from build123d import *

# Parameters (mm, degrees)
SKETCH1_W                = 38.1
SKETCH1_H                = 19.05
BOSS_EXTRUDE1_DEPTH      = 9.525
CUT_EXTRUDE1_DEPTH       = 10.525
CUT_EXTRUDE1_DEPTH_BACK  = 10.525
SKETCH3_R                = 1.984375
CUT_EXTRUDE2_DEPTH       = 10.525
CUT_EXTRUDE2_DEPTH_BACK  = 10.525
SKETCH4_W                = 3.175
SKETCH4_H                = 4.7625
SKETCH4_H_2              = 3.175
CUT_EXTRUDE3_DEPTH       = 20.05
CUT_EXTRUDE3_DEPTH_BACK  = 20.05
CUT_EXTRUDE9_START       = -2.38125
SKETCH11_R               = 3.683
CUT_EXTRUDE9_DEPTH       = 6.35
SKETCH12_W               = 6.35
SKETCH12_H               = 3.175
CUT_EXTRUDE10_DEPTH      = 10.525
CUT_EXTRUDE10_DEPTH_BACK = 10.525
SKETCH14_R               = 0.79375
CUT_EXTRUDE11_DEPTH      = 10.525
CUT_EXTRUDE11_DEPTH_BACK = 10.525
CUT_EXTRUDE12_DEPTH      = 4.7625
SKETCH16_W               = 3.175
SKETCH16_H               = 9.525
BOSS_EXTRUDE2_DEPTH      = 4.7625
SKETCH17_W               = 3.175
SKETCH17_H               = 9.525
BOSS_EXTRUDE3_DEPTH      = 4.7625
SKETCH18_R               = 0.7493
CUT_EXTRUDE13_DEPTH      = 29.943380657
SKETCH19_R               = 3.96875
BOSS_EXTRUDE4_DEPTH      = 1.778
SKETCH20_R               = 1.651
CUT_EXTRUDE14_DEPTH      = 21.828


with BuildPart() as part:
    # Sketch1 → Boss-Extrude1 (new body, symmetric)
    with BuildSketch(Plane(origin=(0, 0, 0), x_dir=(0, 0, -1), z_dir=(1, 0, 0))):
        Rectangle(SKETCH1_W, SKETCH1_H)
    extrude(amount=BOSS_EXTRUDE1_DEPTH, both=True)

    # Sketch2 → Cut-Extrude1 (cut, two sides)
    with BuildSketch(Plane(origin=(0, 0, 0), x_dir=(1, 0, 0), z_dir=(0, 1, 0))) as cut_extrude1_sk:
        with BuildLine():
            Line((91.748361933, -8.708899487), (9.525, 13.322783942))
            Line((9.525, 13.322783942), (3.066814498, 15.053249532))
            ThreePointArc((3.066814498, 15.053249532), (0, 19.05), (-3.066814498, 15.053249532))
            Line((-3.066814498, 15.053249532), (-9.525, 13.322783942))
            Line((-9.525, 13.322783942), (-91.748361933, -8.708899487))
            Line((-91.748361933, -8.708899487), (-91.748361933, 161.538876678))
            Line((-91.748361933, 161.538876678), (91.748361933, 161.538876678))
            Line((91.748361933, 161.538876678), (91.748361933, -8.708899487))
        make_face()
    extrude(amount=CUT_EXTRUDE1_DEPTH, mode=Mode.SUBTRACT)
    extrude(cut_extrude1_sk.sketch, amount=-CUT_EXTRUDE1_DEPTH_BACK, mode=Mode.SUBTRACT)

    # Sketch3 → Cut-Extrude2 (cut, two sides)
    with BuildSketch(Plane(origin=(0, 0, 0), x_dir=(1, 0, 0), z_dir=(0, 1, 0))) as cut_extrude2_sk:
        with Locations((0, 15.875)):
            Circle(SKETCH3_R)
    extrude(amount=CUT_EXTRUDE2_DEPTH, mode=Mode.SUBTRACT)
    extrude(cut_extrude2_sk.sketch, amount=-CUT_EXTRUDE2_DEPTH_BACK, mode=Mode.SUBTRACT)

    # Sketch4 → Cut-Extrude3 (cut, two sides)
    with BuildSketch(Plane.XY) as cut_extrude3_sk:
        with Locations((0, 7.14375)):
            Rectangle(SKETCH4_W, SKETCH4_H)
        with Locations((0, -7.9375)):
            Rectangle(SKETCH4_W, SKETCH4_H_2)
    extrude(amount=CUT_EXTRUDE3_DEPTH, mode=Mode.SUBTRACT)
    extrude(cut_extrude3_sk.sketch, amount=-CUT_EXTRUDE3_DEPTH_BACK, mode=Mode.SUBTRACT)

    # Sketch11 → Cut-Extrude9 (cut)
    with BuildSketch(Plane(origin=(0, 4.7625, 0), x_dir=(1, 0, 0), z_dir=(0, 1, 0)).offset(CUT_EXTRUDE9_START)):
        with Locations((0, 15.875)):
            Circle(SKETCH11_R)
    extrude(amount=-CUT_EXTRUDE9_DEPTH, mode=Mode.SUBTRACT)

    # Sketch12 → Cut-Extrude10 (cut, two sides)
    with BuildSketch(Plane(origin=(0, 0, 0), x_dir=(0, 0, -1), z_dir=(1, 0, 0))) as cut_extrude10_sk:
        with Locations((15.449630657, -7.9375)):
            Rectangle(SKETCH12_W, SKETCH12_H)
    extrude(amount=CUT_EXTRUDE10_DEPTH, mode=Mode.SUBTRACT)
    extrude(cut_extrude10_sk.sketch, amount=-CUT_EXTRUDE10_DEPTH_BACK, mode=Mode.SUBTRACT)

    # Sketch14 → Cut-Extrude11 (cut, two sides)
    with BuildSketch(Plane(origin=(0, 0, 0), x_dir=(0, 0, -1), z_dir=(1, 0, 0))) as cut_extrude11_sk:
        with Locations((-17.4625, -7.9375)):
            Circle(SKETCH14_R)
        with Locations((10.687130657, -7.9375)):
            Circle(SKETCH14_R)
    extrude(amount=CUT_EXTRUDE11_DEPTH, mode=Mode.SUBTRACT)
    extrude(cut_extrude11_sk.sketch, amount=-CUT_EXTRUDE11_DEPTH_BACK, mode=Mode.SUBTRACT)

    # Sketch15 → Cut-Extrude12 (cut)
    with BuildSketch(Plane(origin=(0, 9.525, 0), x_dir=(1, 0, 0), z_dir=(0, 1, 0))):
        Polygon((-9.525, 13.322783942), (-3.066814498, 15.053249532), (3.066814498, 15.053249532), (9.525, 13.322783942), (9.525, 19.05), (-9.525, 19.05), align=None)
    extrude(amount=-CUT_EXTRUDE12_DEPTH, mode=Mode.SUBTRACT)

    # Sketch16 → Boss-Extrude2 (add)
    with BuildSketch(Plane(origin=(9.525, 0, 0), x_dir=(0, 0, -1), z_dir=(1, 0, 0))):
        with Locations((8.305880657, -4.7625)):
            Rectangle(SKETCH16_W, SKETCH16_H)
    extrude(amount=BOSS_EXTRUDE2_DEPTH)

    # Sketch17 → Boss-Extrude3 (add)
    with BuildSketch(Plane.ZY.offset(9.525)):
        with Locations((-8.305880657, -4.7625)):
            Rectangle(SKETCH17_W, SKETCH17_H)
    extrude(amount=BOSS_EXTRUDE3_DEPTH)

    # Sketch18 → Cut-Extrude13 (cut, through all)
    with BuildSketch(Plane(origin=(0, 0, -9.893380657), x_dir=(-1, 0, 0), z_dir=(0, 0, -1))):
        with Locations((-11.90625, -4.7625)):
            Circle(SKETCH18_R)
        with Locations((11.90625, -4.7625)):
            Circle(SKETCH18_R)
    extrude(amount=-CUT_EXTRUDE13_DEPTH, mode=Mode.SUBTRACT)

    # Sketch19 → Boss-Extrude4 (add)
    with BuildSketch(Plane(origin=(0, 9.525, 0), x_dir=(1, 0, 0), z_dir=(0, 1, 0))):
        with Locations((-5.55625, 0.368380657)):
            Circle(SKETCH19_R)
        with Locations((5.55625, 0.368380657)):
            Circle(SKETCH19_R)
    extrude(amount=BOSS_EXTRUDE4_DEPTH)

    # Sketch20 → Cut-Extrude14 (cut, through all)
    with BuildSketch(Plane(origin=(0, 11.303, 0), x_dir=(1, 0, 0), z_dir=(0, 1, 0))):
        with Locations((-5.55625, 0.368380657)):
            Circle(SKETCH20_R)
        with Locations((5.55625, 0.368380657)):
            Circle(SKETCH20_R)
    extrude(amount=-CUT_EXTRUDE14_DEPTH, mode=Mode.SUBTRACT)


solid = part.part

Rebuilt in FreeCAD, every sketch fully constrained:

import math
import FreeCAD as App
import Part
import Sketcher

V = App.Vector
Q = App.Units.Quantity


def add_polygon(sketch, points):
    """Adds a closed chain of lines whose ends are joined by coincident constraints."""
    first, n = sketch.GeometryCount, len(points)
    for a, b in zip(points, points[1:] + points[:1]):
        sketch.addGeometry(Part.LineSegment(App.Vector(*a, 0), App.Vector(*b, 0)), False)
    for i in range(n):
        sketch.addConstraint(Sketcher.Constraint("Coincident", first + i, 2, first + (i + 1) % n, 1))

doc = App.newDocument("Part")
body = doc.addObject("PartDesign::Body", "Body")

# Sketch on YZ plane
sketch1 = doc.addObject("Sketcher::SketchObject", "Sketch")
body.addObject(sketch1)
sketch1.AttachmentSupport = (doc.YZ_Plane, [""])
sketch1.MapMode = "FlatFace"
add_polygon(sketch1, [(10, 19), (-10, 19), (-10, -19), (10, -19)])  # lines 0-3
sketch1.addConstraint(Sketcher.Constraint("Horizontal", 0))
sketch1.addConstraint(Sketcher.Constraint("Vertical", 1))
sketch1.addConstraint(Sketcher.Constraint("Horizontal", 2))
sketch1.addConstraint(Sketcher.Constraint("Vertical", 3))
sketch1.addConstraint(Sketcher.Constraint("Symmetric", 0, 2, 2, 2, -1, 1))
sketch1.addConstraint(Sketcher.Constraint("DistanceY", 1, 2, 1, 1, Q("1.5 in")))
sketch1.addConstraint(Sketcher.Constraint("DistanceX", 0, 2, 0, 1, Q("0.75 in")))
pad1 = doc.addObject("PartDesign::Pad", "Pad")
body.addObject(pad1)
pad1.Profile = sketch1
pad1.Length = Q("0.75 in")
pad1.Midplane = True

# Sketch on XZ plane
sketch2 = doc.addObject("Sketcher::SketchObject", "Sketch001")
body.addObject(sketch2)
sketch2.AttachmentSupport = (doc.XZ_Plane, [""])
sketch2.MapMode = "FlatFace"
sketch2.addGeometry(Part.LineSegment(V(9.5, -13.3, 0), V(91.7, 8.7, 0)), False)
sketch2.addGeometry(Part.LineSegment(V(91.7, 8.7, 0), V(91.7, -161.5, 0)), False)
sketch2.addGeometry(Part.LineSegment(V(91.7, -161.5, 0), V(-91.7, -161.5, 0)), False)
sketch2.addGeometry(Part.LineSegment(V(-91.7, -161.5, 0), V(-91.7, 8.7, 0)), False)
sketch2.addGeometry(Part.LineSegment(V(-91.7, 8.7, 0), V(-9.5, -13.3, 0)), False)
sketch2.addGeometry(Part.LineSegment(V(-9.5, -13.3, 0), V(-3.1, -15.1, 0)), False)
sketch2.addGeometry(Part.ArcOfCircle(Part.Circle(V(0, -15.9, 0), V(0, 0, 1), 3.2), math.radians(165), math.radians(375)), False)
sketch2.addGeometry(Part.LineSegment(V(3.1, -15.1, 0), V(9.5, -13.3, 0)), False)
sketch2.addConstraint(Sketcher.Constraint("Coincident", 0, 2, 1, 1))
sketch2.addConstraint(Sketcher.Constraint("Coincident", 1, 2, 2, 1))
sketch2.addConstraint(Sketcher.Constraint("Coincident", 2, 2, 3, 1))
sketch2.addConstraint(Sketcher.Constraint("Coincident", 3, 2, 4, 1))
sketch2.addConstraint(Sketcher.Constraint("Coincident", 4, 2, 5, 1))
sketch2.addConstraint(Sketcher.Constraint("Coincident", 5, 2, 6, 1))
sketch2.addConstraint(Sketcher.Constraint("Coincident", 6, 2, 7, 1))
sketch2.addConstraint(Sketcher.Constraint("Coincident", 7, 2, 0, 1))
sketch2.addConstraint(Sketcher.Constraint("Vertical", 1))
sketch2.addConstraint(Sketcher.Constraint("Horizontal", 2))
sketch2.addConstraint(Sketcher.Constraint("Vertical", 3))
sketch2.addConstraint(Sketcher.Constraint("Symmetric", 0, 2, 3, 2, -2))
sketch2.addConstraint(Sketcher.Constraint("Symmetric", 5, 2, 6, 2, -2))
sketch2.addConstraint(Sketcher.Constraint("Symmetric", 4, 2, 7, 2, -2))
sketch2.addConstraint(Sketcher.Constraint("Parallel", 4, 5))
sketch2.addConstraint(Sketcher.Constraint("Angle", 0, Q("15 deg")))
sketch2.addConstraint(Sketcher.Constraint("Radius", 6, Q("0.125 in")))
sketch2.addConstraint(Sketcher.Constraint("DistanceX", 4, 2, 7, 2, Q("0.75 in")))
sketch2.addConstraint(Sketcher.Constraint("DistanceY", 6, 3, -1, 1, Q("0.625 in")))
sketch2.addConstraint(Sketcher.Constraint("DistanceY", -1, 1, 0, 2, Q("8.708899 mm")))
sketch2.addConstraint(Sketcher.Constraint("Distance", 0, Q("85.123888 mm")))
sketch2.addConstraint(Sketcher.Constraint("DistanceY", 1, 2, 1, 1, Q("170.247776 mm")))
pocket1 = doc.addObject("PartDesign::Pocket", "Pocket")
body.addObject(pocket1)
pocket1.Profile = sketch2
pocket1.Type = "ThroughAll"
pocket1.Midplane = True

# Sketch on XZ plane
sketch3 = doc.addObject("Sketcher::SketchObject", "Sketch002")
body.addObject(sketch3)
sketch3.AttachmentSupport = (doc.XZ_Plane, [""])
sketch3.MapMode = "FlatFace"
sketch3.addGeometry(Part.Circle(V(0, -15.9, 0), V(0, 0, 1), 2), False)
sketch3.addConstraint(Sketcher.Constraint("PointOnObject", 0, 3, -2))
sketch3.addConstraint(Sketcher.Constraint("Diameter", 0, Q("0.15625 in")))
sketch3.addConstraint(Sketcher.Constraint("DistanceY", 0, 3, -1, 1, Q("0.625 in")))
pocket2 = doc.addObject("PartDesign::Pocket", "Pocket001")
body.addObject(pocket2)
pocket2.Profile = sketch3
pocket2.Type = "ThroughAll"
pocket2.Midplane = True

# Sketch on XY plane
sketch4 = doc.addObject("Sketcher::SketchObject", "Sketch003")
body.addObject(sketch4)
sketch4.AttachmentSupport = (doc.XY_Plane, [""])
sketch4.MapMode = "FlatFace"
add_polygon(sketch4, [(-1.6, 9.5), (-1.6, 4.8), (1.6, 4.8), (1.6, 9.5)])  # lines 0-3
add_polygon(sketch4, [(-1.6, -6.3), (-1.6, -9.5), (1.6, -9.5), (1.6, -6.3)])  # lines 4-7
sketch4.addConstraint(Sketcher.Constraint("Vertical", 0))
sketch4.addConstraint(Sketcher.Constraint("Horizontal", 1))
sketch4.addConstraint(Sketcher.Constraint("Vertical", 2))
sketch4.addConstraint(Sketcher.Constraint("Horizontal", 3))
sketch4.addConstraint(Sketcher.Constraint("Vertical", 4))
sketch4.addConstraint(Sketcher.Constraint("Horizontal", 5))
sketch4.addConstraint(Sketcher.Constraint("Vertical", 6))
sketch4.addConstraint(Sketcher.Constraint("Horizontal", 7))
sketch4.addConstraint(Sketcher.Constraint("Symmetric", 2, 2, 4, 2, -1, 1))
sketch4.addConstraint(Sketcher.Constraint("Vertical", 3, 2, 4, 2))
sketch4.addConstraint(Sketcher.Constraint("Vertical", 2, 2, 5, 2))
sketch4.addConstraint(Sketcher.Constraint("Equal", 7, 4))
sketch4.addConstraint(Sketcher.Constraint("DistanceX", 1, 1, 1, 2, Q("0.125 in")))
sketch4.addConstraint(Sketcher.Constraint("DistanceY", 0, 2, 0, 1, Q("0.1875 in")))
sketch4.addConstraint(Sketcher.Constraint("DistanceY", 6, 2, -1, 1, Q("0.25 in")))
pocket3 = doc.addObject("PartDesign::Pocket", "Pocket002")
body.addObject(pocket3)
pocket3.Profile = sketch4
pocket3.Type = "ThroughAll"
pocket3.Midplane = True

# Sketch on XZ plane
sketch5 = doc.addObject("Sketcher::SketchObject", "Sketch004")
body.addObject(sketch5)
sketch5.AttachmentSupport = (doc.XZ_Plane, [""])
sketch5.MapMode = "FlatFace"
sketch5.AttachmentOffset = App.Placement(V(0, 0, -0.09375 * 25.4), App.Rotation())
sketch5.addGeometry(Part.Circle(V(0, -15.9, 0), V(0, 0, 1), 3.7), False)
sketch5.addConstraint(Sketcher.Constraint("PointOnObject", 0, 3, -2))
sketch5.addConstraint(Sketcher.Constraint("Diameter", 0, Q("0.29 in")))
sketch5.addConstraint(Sketcher.Constraint("DistanceY", 0, 3, -1, 1, Q("0.625 in")))
pocket4 = doc.addObject("PartDesign::Pocket", "Pocket003")
body.addObject(pocket4)
pocket4.Profile = sketch5
pocket4.Length = Q("0.25 in")
pocket4.Reversed = True

# Sketch on YZ plane
sketch6 = doc.addObject("Sketcher::SketchObject", "Sketch005")
body.addObject(sketch6)
sketch6.AttachmentSupport = (doc.YZ_Plane, [""])
sketch6.MapMode = "FlatFace"
add_polygon(sketch6, [(-6.3, -12.3), (-9.5, -12.3), (-9.5, -18.6), (-6.3, -18.6)])  # lines 0-3
sketch6.addConstraint(Sketcher.Constraint("Horizontal", 0))
sketch6.addConstraint(Sketcher.Constraint("Vertical", 1))
sketch6.addConstraint(Sketcher.Constraint("Horizontal", 2))
sketch6.addConstraint(Sketcher.Constraint("Vertical", 3))
sketch6.addConstraint(Sketcher.Constraint("DistanceY", 1, 2, 1, 1, Q("0.25 in")))
sketch6.addConstraint(Sketcher.Constraint("DistanceX", 0, 2, 0, 1, Q("0.125 in")))
sketch6.addConstraint(Sketcher.Constraint("DistanceX", 2, 2, -1, 1, Q("0.25 in")))
sketch6.addConstraint(Sketcher.Constraint("DistanceY", 0, 2, -1, 1, Q("12.274631 mm")))
pocket5 = doc.addObject("PartDesign::Pocket", "Pocket004")
body.addObject(pocket5)
pocket5.Profile = sketch6
pocket5.Type = "ThroughAll"
pocket5.Midplane = True

# Sketch on YZ plane
sketch7 = doc.addObject("Sketcher::SketchObject", "Sketch006")
body.addObject(sketch7)
sketch7.AttachmentSupport = (doc.YZ_Plane, [""])
sketch7.MapMode = "FlatFace"
sketch7.addGeometry(Part.Circle(V(-7.9, 17.5, 0), V(0, 0, 1), 0.8), False)
sketch7.addGeometry(Part.Circle(V(-7.9, -10.7, 0), V(0, 0, 1), 0.8), False)
sketch7.addConstraint(Sketcher.Constraint("Equal", 0, 1))
sketch7.addConstraint(Sketcher.Constraint("Vertical", 0, 3, 1, 3))
sketch7.addConstraint(Sketcher.Constraint("Diameter", 0, Q("0.0625 in")))
sketch7.addConstraint(Sketcher.Constraint("DistanceX", 0, 3, -1, 1, Q("0.3125 in")))
sketch7.addConstraint(Sketcher.Constraint("DistanceY", -1, 1, 0, 3, Q("0.6875 in")))
sketch7.addConstraint(Sketcher.Constraint("DistanceY", 1, 3, -1, 1, Q("10.687131 mm")))
pocket6 = doc.addObject("PartDesign::Pocket", "Pocket005")
body.addObject(pocket6)
pocket6.Profile = sketch7
pocket6.Type = "ThroughAll"
pocket6.Midplane = True

# Sketch on XZ plane
sketch8 = doc.addObject("Sketcher::SketchObject", "Sketch007")
body.addObject(sketch8)
sketch8.AttachmentSupport = (doc.XZ_Plane, [""])
sketch8.MapMode = "FlatFace"
sketch8.AttachmentOffset = App.Placement(V(0, 0, -0.375 * 25.4), App.Rotation())
add_polygon(sketch8, [(-10, -13), (-3, -15), (3, -15), (10, -13), (10, -19), (-10, -19)])  # lines 0-5
sketch8.addConstraint(Sketcher.Constraint("Horizontal", 1))
sketch8.addConstraint(Sketcher.Constraint("Vertical", 3))
sketch8.addConstraint(Sketcher.Constraint("Horizontal", 4))
sketch8.addConstraint(Sketcher.Constraint("Vertical", 5))
sketch8.addConstraint(Sketcher.Constraint("Symmetric", 2, 2, 5, 2, -2))
sketch8.addConstraint(Sketcher.Constraint("Equal", 0, 2))
sketch8.addConstraint(Sketcher.Constraint("Angle", 0, Q("-15 deg")))
sketch8.addConstraint(Sketcher.Constraint("DistanceX", 4, 2, 4, 1, Q("0.75 in")))
sketch8.addConstraint(Sketcher.Constraint("DistanceY", 3, 2, -1, 1, Q("0.75 in")))
sketch8.addConstraint(Sketcher.Constraint("DistanceX", 1, 1, 1, 2, Q("6.133629 mm")))
sketch8.addConstraint(Sketcher.Constraint("DistanceY", 3, 2, 3, 1, Q("5.727216 mm")))
pocket7 = doc.addObject("PartDesign::Pocket", "Pocket006")
body.addObject(pocket7)
pocket7.Profile = sketch8
pocket7.Length = Q("0.1875 in")
pocket7.Reversed = True

# Sketch on YZ plane
sketch9 = doc.addObject("Sketcher::SketchObject", "Sketch008")
body.addObject(sketch9)
sketch9.AttachmentSupport = (doc.YZ_Plane, [""])
sketch9.MapMode = "FlatFace"
sketch9.AttachmentOffset = App.Placement(V(0, 0, 0.375 * 25.4), App.Rotation())
add_polygon(sketch9, [(0, -6.7), (-9.5, -6.7), (-9.5, -9.9), (0, -9.9)])  # lines 0-3
sketch9.addConstraint(Sketcher.Constraint("Horizontal", 0))
sketch9.addConstraint(Sketcher.Constraint("Vertical", 1))
sketch9.addConstraint(Sketcher.Constraint("Horizontal", 2))
sketch9.addConstraint(Sketcher.Constraint("Vertical", 3))
sketch9.addConstraint(Sketcher.Constraint("PointOnObject", 2, 2, -2))
sketch9.addConstraint(Sketcher.Constraint("DistanceX", 0, 2, 0, 1, Q("0.375 in")))
sketch9.addConstraint(Sketcher.Constraint("DistanceY", 1, 2, 1, 1, Q("0.125 in")))
sketch9.addConstraint(Sketcher.Constraint("DistanceY", 0, 2, -1, 1, Q("6.718381 mm")))
pad2 = doc.addObject("PartDesign::Pad", "Pad001")
body.addObject(pad2)
pad2.Profile = sketch9
pad2.Length = Q("0.1875 in")

# Sketch on YZ plane
sketch10 = doc.addObject("Sketcher::SketchObject", "Sketch009")
body.addObject(sketch10)
sketch10.AttachmentSupport = (doc.YZ_Plane, [""])
sketch10.MapMode = "FlatFace"
sketch10.AttachmentOffset = App.Placement(V(0, 0, -0.375 * 25.4), App.Rotation())
add_polygon(sketch10, [(0, -9.9), (-9.5, -9.9), (-9.5, -6.7), (0, -6.7)])  # lines 0-3
sketch10.addConstraint(Sketcher.Constraint("Horizontal", 0))
sketch10.addConstraint(Sketcher.Constraint("Vertical", 1))
sketch10.addConstraint(Sketcher.Constraint("Horizontal", 2))
sketch10.addConstraint(Sketcher.Constraint("Vertical", 3))
sketch10.addConstraint(Sketcher.Constraint("PointOnObject", 2, 2, -2))
sketch10.addConstraint(Sketcher.Constraint("DistanceX", 0, 2, 0, 1, Q("0.375 in")))
sketch10.addConstraint(Sketcher.Constraint("DistanceY", 1, 1, 1, 2, Q("0.125 in")))
sketch10.addConstraint(Sketcher.Constraint("DistanceY", 0, 2, -1, 1, Q("9.893381 mm")))
pad3 = doc.addObject("PartDesign::Pad", "Pad002")
body.addObject(pad3)
pad3.Profile = sketch10
pad3.Length = Q("0.1875 in")
pad3.Reversed = True

# Sketch on XY plane
sketch11 = doc.addObject("Sketcher::SketchObject", "Sketch010")
body.addObject(sketch11)
sketch11.AttachmentSupport = (doc.XY_Plane, [""])
sketch11.MapMode = "FlatFace"
sketch11.AttachmentOffset = App.Placement(V(0, 0, -9.893381), App.Rotation())
sketch11.addGeometry(Part.Circle(V(11.9, -4.8, 0), V(0, 0, 1), 0.7), False)
sketch11.addGeometry(Part.Circle(V(-11.9, -4.8, 0), V(0, 0, 1), 0.7), False)
sketch11.addConstraint(Sketcher.Constraint("Equal", 0, 1))
sketch11.addConstraint(Sketcher.Constraint("Symmetric", 0, 3, 1, 3, -2))
sketch11.addConstraint(Sketcher.Constraint("Diameter", 0, Q("0.059 in")))
sketch11.addConstraint(Sketcher.Constraint("DistanceX", -1, 1, 0, 3, Q("0.46875 in")))
sketch11.addConstraint(Sketcher.Constraint("DistanceY", 0, 3, -1, 1, Q("0.1875 in")))
pocket8 = doc.addObject("PartDesign::Pocket", "Pocket007")
body.addObject(pocket8)
pocket8.Profile = sketch11
pocket8.Type = "ThroughAll"
pocket8.Reversed = True

# Sketch on XZ plane
sketch12 = doc.addObject("Sketcher::SketchObject", "Sketch011")
body.addObject(sketch12)
sketch12.AttachmentSupport = (doc.XZ_Plane, [""])
sketch12.MapMode = "FlatFace"
sketch12.AttachmentOffset = App.Placement(V(0, 0, -0.375 * 25.4), App.Rotation())
sketch12.addGeometry(Part.Circle(V(-5.6, -0.4, 0), V(0, 0, 1), 4), False)
sketch12.addGeometry(Part.Circle(V(5.6, -0.4, 0), V(0, 0, 1), 4), False)
sketch12.addConstraint(Sketcher.Constraint("Equal", 0, 1))
sketch12.addConstraint(Sketcher.Constraint("Symmetric", 0, 3, 1, 3, -2))
sketch12.addConstraint(Sketcher.Constraint("Diameter", 0, Q("0.3125 in")))
sketch12.addConstraint(Sketcher.Constraint("DistanceX", 0, 3, -1, 1, Q("0.21875 in")))
sketch12.addConstraint(Sketcher.Constraint("DistanceY", 0, 3, -1, 1, Q("0.368381 mm")))
pad4 = doc.addObject("PartDesign::Pad", "Pad003")
body.addObject(pad4)
pad4.Profile = sketch12
pad4.Length = Q("0.07 in")
pad4.Reversed = True

# Sketch on XZ plane
sketch13 = doc.addObject("Sketcher::SketchObject", "Sketch012")
body.addObject(sketch13)
sketch13.AttachmentSupport = (doc.XZ_Plane, [""])
sketch13.MapMode = "FlatFace"
sketch13.AttachmentOffset = App.Placement(V(0, 0, -0.445 * 25.4), App.Rotation())
sketch13.addGeometry(Part.Circle(V(-5.6, -0.4, 0), V(0, 0, 1), 1.7), False)
sketch13.addGeometry(Part.Circle(V(5.6, -0.4, 0), V(0, 0, 1), 1.7), False)
sketch13.addConstraint(Sketcher.Constraint("Equal", 0, 1))
sketch13.addConstraint(Sketcher.Constraint("Symmetric", 0, 3, 1, 3, -2))
sketch13.addConstraint(Sketcher.Constraint("Diameter", 0, Q("0.13 in")))
sketch13.addConstraint(Sketcher.Constraint("DistanceX", 0, 3, -1, 1, Q("0.21875 in")))
sketch13.addConstraint(Sketcher.Constraint("DistanceY", 0, 3, -1, 1, Q("0.368381 mm")))
pocket9 = doc.addObject("PartDesign::Pocket", "Pocket008")
body.addObject(pocket9)
pocket9.Profile = sketch13
pocket9.Type = "ThroughAll"
pocket9.Reversed = True

doc.recompute()
